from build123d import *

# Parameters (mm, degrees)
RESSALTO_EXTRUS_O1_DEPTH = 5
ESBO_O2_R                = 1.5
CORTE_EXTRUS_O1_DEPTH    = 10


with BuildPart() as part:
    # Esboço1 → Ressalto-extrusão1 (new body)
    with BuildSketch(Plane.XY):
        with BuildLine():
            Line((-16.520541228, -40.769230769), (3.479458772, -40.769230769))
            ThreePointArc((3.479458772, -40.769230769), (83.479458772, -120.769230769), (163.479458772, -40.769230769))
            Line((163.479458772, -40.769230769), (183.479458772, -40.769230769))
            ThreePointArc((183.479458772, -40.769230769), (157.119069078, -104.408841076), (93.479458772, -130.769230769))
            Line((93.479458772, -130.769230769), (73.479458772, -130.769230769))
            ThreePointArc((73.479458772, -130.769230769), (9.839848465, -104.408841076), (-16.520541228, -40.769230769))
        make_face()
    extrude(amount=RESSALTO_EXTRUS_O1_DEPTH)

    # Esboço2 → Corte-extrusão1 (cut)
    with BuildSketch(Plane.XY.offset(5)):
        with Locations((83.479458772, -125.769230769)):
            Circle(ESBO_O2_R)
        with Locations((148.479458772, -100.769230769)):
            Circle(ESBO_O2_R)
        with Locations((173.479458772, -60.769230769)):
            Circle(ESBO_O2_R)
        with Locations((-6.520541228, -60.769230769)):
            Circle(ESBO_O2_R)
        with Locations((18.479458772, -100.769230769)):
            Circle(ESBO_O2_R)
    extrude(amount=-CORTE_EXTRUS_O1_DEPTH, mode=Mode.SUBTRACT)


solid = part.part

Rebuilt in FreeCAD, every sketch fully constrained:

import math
import FreeCAD as App
import Part
import Sketcher

V = App.Vector

doc = App.newDocument("Part")
body = doc.addObject("PartDesign::Body", "Body")

# Sketch on XY plane
sketch1 = body.newObject("Sketcher::SketchObject", "Sketch")
sketch1.AttachmentSupport = (doc.getObject("XY_Plane"), [""])
sketch1.MapMode = "FlatFace"
sketch1.addGeometry(Part.LineSegment(V(3.479459, -40.769231, 0), V(-16.520541, -40.769231, 0)), False)
sketch1.addGeometry(Part.ArcOfCircle(Part.Circle(V(73.479459, -40.769231, 0), V(0, 0, 1), 90), math.radians(180), math.radians(270)), False)
sketch1.addGeometry(Part.LineSegment(V(73.479459, -130.769231, 0), V(93.479459, -130.769231, 0)), False)
sketch1.addGeometry(Part.ArcOfCircle(Part.Circle(V(93.479459, -40.769231, 0), V(0, 0, 1), 90), math.radians(-90), math.radians(0)), False)
sketch1.addGeometry(Part.LineSegment(V(183.479459, -40.769231, 0), V(163.479459, -40.769231, 0)), False)
sketch1.addGeometry(Part.ArcOfCircle(Part.Circle(V(83.479459, -40.769231, 0), V(0, 0, 1), 80), math.radians(180), math.radians(360)), False)
sketch1.addConstraint(Sketcher.Constraint("Coincident", 0, 2, 1, 1))
sketch1.addConstraint(Sketcher.Constraint("Tangent", 1, 2, 2, 1))
sketch1.addConstraint(Sketcher.Constraint("Tangent", 2, 2, 3, 1))
sketch1.addConstraint(Sketcher.Constraint("Coincident", 3, 2, 4, 1))
sketch1.addConstraint(Sketcher.Constraint("Coincident", 4, 2, 5, 2))
sketch1.addConstraint(Sketcher.Constraint("Coincident", 5, 1, 0, 1))
sketch1.addConstraint(Sketcher.Constraint("Horizontal", 0))
sketch1.addConstraint(Sketcher.Constraint("Horizontal", 2))
sketch1.addConstraint(Sketcher.Constraint("Horizontal", 4))
sketch1.addConstraint(Sketcher.Constraint("Equal", 1, 3))
sketch1.addConstraint(Sketcher.Constraint("Horizontal", 3, 3, 5, 3))
sketch1.addConstraint(Sketcher.Constraint("Horizontal", 5, 3, 0, 2))
sketch1.addConstraint(Sketcher.Constraint("Horizontal", 0, 2, 3, 2))
sketch1.addConstraint(Sketcher.Constraint("Equal", 0, 2))
sketch1.addConstraint(Sketcher.Constraint("Equal", 2, 4))
sketch1.addConstraint(Sketcher.Constraint("Radius", 1, 90.0))
sketch1.addConstraint(Sketcher.Constraint("Radius", 5, 80.0))
sketch1.addConstraint(Sketcher.Constraint("DistanceX", -1, 1, 1, 3, 73.479459))
sketch1.addConstraint(Sketcher.Constraint("DistanceY", 1, 3, -1, 1, 40.769231))
pad1 = body.newObject("PartDesign::Pad", "Pad")
pad1.Profile = sketch1
pad1.Length = 5

# Sketch on XY plane
sketch2 = body.newObject("Sketcher::SketchObject", "Sketch001")
sketch2.AttachmentSupport = (doc.getObject("XY_Plane"), [""])
sketch2.MapMode = "FlatFace"
sketch2.AttachmentOffset = App.Placement(V(0, 0, 5), App.Rotation())
sketch2.addGeometry(Part.Circle(V(83.479459, -125.769231, 0), V(0, 0, 1), 1.5), False)
sketch2.addGeometry(Part.Circle(V(148.479459, -100.769231, 0), V(0, 0, 1), 1.5), False)
sketch2.addGeometry(Part.Circle(V(173.479459, -60.769231, 0), V(0, 0, 1), 1.5), False)
sketch2.addGeometry(Part.Circle(V(-6.520541, -60.769231, 0), V(0, 0, 1), 1.5), False)
sketch2.addGeometry(Part.Circle(V(18.479459, -100.769231, 0), V(0, 0, 1), 1.5), False)
sketch2.addConstraint(Sketcher.Constraint("Equal", 0, 1))
sketch2.addConstraint(Sketcher.Constraint("Equal", 1, 2))
sketch2.addConstraint(Sketcher.Constraint("Equal", 2, 3))
sketch2.addConstraint(Sketcher.Constraint("Equal", 3, 4))
sketch2.addConstraint(Sketcher.Constraint("Horizontal", 2, 3, 3, 3))
sketch2.addConstraint(Sketcher.Constraint("Horizontal", 1, 3, 4, 3))
sketch2.addConstraint(Sketcher.Constraint("Diameter", 0, 3.0))
sketch2.addConstraint(Sketcher.Constraint("DistanceX", 0, 3, 1, 3, 65.0))
sketch2.addConstraint(Sketcher.Constraint("DistanceY", 0, 3, 1, 3, 25.0))
sketch2.addConstraint(Sketcher.Constraint("DistanceX", 1, 3, 2, 3, 25.0))
sketch2.addConstraint(Sketcher.Constraint("DistanceY", 1, 3, 2, 3, 40.0))
sketch2.addConstraint(Sketcher.Constraint("DistanceX", 3, 3, 0, 3, 90.0))
sketch2.addConstraint(Sketcher.Constraint("DistanceX", 3, 3, 4, 3, 25.0))
sketch2.addConstraint(Sketcher.Constraint("DistanceX", -1, 1, 0, 3, 83.479459))
sketch2.addConstraint(Sketcher.Constraint("DistanceY", 0, 3, -1, 1, 125.769231))
pocket1 = body.newObject("PartDesign::Pocket", "Pocket")
pocket1.Profile = sketch2
pocket1.Length = 10

doc.recompute()
